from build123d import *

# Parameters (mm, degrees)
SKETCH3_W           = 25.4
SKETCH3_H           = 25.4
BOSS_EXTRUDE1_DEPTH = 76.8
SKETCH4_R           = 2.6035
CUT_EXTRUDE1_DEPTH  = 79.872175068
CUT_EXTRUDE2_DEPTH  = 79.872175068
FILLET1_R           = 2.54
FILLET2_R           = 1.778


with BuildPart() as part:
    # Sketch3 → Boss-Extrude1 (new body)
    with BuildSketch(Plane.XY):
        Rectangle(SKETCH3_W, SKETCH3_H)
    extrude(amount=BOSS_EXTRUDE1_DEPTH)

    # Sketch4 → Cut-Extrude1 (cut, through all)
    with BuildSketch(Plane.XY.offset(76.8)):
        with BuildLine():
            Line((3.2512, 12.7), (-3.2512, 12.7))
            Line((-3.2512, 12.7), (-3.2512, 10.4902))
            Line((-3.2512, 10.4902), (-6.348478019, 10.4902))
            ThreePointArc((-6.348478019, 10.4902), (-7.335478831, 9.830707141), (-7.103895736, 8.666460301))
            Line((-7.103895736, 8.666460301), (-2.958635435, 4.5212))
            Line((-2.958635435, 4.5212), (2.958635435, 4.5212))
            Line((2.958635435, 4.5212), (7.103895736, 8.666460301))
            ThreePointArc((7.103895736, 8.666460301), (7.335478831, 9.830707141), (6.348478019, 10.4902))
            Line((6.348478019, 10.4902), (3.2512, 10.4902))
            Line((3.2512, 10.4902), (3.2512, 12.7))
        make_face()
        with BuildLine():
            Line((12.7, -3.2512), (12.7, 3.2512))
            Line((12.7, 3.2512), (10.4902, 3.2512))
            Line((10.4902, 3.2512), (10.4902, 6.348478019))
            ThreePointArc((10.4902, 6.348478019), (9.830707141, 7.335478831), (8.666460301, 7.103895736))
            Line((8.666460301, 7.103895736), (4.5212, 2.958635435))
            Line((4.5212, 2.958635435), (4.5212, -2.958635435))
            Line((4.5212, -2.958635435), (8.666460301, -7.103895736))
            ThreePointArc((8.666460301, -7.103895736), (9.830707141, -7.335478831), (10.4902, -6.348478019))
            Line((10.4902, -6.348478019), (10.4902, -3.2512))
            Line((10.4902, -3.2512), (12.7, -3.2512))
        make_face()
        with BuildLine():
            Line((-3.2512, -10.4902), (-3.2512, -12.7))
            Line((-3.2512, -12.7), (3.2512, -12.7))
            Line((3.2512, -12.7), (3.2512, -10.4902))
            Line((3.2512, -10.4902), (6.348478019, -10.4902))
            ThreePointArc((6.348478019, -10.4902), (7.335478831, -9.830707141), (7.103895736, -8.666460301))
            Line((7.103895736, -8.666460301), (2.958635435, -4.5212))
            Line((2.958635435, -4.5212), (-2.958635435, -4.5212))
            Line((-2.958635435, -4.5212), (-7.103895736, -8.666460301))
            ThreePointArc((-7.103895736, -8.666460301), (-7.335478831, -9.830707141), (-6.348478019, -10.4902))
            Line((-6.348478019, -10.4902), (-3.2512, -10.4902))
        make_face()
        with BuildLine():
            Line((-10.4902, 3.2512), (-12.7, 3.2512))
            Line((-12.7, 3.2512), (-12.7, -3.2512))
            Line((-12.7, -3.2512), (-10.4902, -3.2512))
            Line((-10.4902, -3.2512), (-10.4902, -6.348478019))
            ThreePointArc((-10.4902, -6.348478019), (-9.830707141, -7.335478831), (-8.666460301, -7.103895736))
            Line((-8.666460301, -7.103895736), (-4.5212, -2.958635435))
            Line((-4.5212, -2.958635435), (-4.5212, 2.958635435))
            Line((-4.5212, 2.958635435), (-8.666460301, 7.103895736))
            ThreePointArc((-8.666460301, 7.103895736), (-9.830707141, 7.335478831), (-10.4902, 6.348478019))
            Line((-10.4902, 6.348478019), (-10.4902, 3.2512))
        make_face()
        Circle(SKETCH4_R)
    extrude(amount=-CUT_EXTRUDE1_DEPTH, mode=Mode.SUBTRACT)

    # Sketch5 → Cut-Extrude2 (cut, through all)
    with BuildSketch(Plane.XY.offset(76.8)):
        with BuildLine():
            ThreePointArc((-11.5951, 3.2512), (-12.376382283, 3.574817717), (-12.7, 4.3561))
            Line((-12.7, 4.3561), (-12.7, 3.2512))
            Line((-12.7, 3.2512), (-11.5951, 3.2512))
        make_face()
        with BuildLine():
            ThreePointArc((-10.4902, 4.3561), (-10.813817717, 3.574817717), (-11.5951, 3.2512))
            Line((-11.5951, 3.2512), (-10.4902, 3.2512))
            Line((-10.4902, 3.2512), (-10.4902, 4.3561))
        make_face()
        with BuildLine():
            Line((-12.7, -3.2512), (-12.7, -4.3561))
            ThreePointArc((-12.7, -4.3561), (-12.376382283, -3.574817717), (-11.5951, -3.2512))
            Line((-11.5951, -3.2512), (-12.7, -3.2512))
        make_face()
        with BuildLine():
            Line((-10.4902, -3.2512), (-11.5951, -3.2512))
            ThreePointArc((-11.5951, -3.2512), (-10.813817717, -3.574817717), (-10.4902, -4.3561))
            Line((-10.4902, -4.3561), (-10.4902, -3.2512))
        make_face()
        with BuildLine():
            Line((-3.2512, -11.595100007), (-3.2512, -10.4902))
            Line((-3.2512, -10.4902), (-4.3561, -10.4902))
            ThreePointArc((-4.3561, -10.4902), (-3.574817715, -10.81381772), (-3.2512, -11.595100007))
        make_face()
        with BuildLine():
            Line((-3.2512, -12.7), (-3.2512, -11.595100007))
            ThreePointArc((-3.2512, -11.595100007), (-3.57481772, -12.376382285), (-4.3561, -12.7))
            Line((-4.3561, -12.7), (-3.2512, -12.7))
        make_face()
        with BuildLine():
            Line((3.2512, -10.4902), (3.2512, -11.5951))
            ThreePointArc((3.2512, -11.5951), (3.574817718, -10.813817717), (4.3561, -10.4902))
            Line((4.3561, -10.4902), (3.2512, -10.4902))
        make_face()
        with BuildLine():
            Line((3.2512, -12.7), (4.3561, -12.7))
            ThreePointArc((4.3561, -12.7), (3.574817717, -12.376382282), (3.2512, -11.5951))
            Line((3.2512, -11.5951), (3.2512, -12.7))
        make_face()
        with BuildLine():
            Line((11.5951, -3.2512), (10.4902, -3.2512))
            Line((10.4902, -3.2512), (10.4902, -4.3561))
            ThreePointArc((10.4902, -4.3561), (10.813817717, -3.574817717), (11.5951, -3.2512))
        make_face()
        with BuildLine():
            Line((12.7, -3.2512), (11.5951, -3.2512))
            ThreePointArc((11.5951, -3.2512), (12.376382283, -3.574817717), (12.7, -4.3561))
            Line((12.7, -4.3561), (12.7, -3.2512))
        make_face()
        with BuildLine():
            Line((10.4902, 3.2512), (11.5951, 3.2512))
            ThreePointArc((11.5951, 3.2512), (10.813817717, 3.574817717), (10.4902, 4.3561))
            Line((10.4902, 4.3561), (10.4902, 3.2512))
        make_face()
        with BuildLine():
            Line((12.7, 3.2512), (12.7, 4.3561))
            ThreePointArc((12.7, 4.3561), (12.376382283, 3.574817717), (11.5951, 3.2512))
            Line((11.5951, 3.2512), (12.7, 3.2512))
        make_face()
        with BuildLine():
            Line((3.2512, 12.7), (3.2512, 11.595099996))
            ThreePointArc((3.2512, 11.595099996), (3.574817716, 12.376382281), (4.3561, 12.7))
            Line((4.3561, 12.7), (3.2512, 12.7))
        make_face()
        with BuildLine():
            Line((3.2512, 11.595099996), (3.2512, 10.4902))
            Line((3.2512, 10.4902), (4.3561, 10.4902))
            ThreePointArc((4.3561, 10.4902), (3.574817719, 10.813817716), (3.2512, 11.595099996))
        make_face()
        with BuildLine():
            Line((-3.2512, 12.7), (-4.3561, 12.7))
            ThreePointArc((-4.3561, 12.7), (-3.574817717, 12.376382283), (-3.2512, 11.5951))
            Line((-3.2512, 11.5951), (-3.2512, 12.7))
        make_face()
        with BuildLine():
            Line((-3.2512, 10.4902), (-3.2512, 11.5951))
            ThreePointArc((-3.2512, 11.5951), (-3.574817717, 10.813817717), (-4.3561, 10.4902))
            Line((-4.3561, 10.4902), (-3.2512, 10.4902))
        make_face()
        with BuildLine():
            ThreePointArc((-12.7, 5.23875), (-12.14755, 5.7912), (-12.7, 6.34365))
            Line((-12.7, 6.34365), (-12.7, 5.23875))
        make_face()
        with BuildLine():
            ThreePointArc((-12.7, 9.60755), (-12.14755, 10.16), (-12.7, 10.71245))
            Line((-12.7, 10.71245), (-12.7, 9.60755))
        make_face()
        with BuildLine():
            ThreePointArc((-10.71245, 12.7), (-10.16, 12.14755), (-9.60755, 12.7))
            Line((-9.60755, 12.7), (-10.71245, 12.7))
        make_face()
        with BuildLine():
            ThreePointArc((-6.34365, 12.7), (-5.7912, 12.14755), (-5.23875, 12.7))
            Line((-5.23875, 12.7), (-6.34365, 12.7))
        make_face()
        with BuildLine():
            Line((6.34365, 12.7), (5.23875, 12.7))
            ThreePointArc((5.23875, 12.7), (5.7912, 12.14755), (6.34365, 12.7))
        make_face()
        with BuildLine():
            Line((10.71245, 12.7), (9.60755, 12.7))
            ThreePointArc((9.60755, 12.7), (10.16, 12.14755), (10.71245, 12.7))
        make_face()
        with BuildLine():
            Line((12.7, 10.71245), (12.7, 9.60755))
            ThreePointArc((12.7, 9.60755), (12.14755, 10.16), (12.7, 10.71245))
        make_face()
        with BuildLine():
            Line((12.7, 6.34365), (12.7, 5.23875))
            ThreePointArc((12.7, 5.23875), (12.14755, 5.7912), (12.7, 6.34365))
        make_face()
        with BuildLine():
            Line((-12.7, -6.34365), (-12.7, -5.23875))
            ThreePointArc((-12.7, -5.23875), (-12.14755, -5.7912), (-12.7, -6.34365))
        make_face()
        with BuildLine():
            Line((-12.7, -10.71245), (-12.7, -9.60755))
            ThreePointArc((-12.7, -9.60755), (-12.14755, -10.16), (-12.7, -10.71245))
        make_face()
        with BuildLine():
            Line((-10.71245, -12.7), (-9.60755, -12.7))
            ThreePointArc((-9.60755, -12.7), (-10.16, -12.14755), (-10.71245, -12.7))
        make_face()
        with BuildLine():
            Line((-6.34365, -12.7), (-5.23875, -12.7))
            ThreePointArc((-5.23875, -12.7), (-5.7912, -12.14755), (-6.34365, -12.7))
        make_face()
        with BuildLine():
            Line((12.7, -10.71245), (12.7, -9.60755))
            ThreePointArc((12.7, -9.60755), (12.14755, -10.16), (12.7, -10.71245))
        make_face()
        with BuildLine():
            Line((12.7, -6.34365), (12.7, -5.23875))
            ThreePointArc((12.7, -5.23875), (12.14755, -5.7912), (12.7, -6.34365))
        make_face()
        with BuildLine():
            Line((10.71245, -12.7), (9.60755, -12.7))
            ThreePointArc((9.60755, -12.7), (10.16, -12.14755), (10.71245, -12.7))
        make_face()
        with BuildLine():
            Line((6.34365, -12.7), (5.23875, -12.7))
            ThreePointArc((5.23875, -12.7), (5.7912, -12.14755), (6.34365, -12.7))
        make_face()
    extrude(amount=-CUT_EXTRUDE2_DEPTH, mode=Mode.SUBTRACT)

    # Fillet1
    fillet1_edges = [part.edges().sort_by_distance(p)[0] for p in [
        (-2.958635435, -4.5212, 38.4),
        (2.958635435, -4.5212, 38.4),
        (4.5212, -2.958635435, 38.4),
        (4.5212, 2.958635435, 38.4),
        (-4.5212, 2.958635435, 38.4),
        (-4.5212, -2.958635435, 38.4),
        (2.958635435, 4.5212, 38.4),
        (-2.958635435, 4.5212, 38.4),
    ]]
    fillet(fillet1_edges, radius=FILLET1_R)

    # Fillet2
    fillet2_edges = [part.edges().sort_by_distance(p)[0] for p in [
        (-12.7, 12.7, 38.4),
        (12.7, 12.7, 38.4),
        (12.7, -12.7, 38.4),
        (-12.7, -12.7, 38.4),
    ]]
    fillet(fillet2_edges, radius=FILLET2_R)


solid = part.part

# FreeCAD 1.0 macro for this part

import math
import FreeCAD as App
import Part
import Sketcher
from FreeCAD import Vector
Q = App.Units.Quantity


def edges_at(feature, points):
    """Names of the edges that pass closest to the given points."""
    edges = feature.Shape.Edges
    near = lambda p: min(range(len(edges)), key=lambda i: edges[i].distToShape(Part.Vertex(*p))[0])
    return sorted({f"Edge{near(p) + 1}" for p in points})


def add_polygon(sketch, points):
    """Adds a closed chain of lines whose ends are joined by coincident constraints."""
    first, n = sketch.GeometryCount, len(points)
    for a, b in zip(points, points[1:] + points[:1]):
        sketch.addGeometry(Part.LineSegment(App.Vector(*a, 0), App.Vector(*b, 0)), False)
    for i in range(n):
        sketch.addConstraint(Sketcher.Constraint("Coincident", first + i, 2, first + (i + 1) % n, 1))

doc = App.newDocument("Part")
body = doc.addObject("PartDesign::Body", "Body")

# Sketch on XY plane
sketch1 = doc.addObject("Sketcher::SketchObject", "Sketch")
body.addObject(sketch1)
sketch1.AttachmentSupport = (doc.XY_Plane, [""])
sketch1.MapMode = "FlatFace"
add_polygon(sketch1, [(-13, 13), (-13, -13), (13, -13), (13, 13)])  # lines 0-3
sketch1.addConstraint(Sketcher.Constraint("Vertical", 0))
sketch1.addConstraint(Sketcher.Constraint("Horizontal", 1))
sketch1.addConstraint(Sketcher.Constraint("Vertical", 2))
sketch1.addConstraint(Sketcher.Constraint("Horizontal", 3))
sketch1.addConstraint(Sketcher.Constraint("Symmetric", 0, 2, 2, 2, -1, 1))
sketch1.addConstraint(Sketcher.Constraint("Equal", 3, 0))
sketch1.addConstraint(Sketcher.Constraint("DistanceX", 1, 1, 1, 2, Q("1 in")))
pad1 = doc.addObject("PartDesign::Pad", "Pad")
body.addObject(pad1)
pad1.Profile = sketch1
pad1.Length = 76.8

# Sketch on XY plane
sketch2 = doc.addObject("Sketcher::SketchObject", "Sketch001")
body.addObject(sketch2)
sketch2.AttachmentSupport = (doc.XY_Plane, [""])
sketch2.MapMode = "FlatFace"
sketch2.AttachmentOffset = App.Placement(Vector(0, 0, 76.8), App.Rotation())
sketch2.addGeometry(Part.LineSegment(Vector(3.3, 12.7, 0), Vector(-3.3, 12.7, 0)), False)
sketch2.addGeometry(Part.LineSegment(Vector(-3.3, 12.7, 0), Vector(-3.3, 10.5, 0)), False)
sketch2.addGeometry(Part.LineSegment(Vector(-3.3, 10.5, 0), Vector(-6.3, 10.5, 0)), False)
sketch2.addGeometry(Part.ArcOfCircle(Part.Circle(Vector(-6.3, 9.4, 0), Vector(0, 0, 1), 1.1), math.radians(90), math.radians(225)), False)
sketch2.addGeometry(Part.LineSegment(Vector(-7.1, 8.7, 0), Vector(-3, 4.5, 0)), False)
sketch2.addGeometry(Part.LineSegment(Vector(-3, 4.5, 0), Vector(3, 4.5, 0)), False)
sketch2.addGeometry(Part.LineSegment(Vector(3, 4.5, 0), Vector(7.1, 8.7, 0)), False)
sketch2.addGeometry(Part.ArcOfCircle(Part.Circle(Vector(6.3, 9.4, 0), Vector(0, 0, 1), 1.1), math.radians(-45), math.radians(90)), False)
sketch2.addGeometry(Part.LineSegment(Vector(6.3, 10.5, 0), Vector(3.3, 10.5, 0)), False)
sketch2.addGeometry(Part.LineSegment(Vector(3.3, 10.5, 0), Vector(3.3, 12.7, 0)), False)
sketch2.addGeometry(Part.LineSegment(Vector(12.7, -3.3, 0), Vector(12.7, 3.3, 0)), False)
sketch2.addGeometry(Part.LineSegment(Vector(12.7, 3.3, 0), Vector(10.5, 3.3, 0)), False)
sketch2.addGeometry(Part.LineSegment(Vector(10.5, 3.3, 0), Vector(10.5, 6.3, 0)), False)
sketch2.addGeometry(Part.ArcOfCircle(Part.Circle(Vector(9.4, 6.3, 0), Vector(0, 0, 1), 1.1), math.radians(0), math.radians(135)), False)
sketch2.addGeometry(Part.LineSegment(Vector(8.7, 7.1, 0), Vector(4.5, 3, 0)), False)
sketch2.addGeometry(Part.LineSegment(Vector(4.5, 3, 0), Vector(4.5, -3, 0)), False)
sketch2.addGeometry(Part.LineSegment(Vector(4.5, -3, 0), Vector(8.7, -7.1, 0)), False)
sketch2.addGeometry(Part.ArcOfCircle(Part.Circle(Vector(9.4, -6.3, 0), Vector(0, 0, 1), 1.1), math.radians(-135), math.radians(0)), False)
sketch2.addGeometry(Part.LineSegment(Vector(10.5, -6.3, 0), Vector(10.5, -3.3, 0)), False)
sketch2.addGeometry(Part.LineSegment(Vector(10.5, -3.3, 0), Vector(12.7, -3.3, 0)), False)
sketch2.addGeometry(Part.LineSegment(Vector(-3.3, -10.5, 0), Vector(-3.3, -12.7, 0)), False)
sketch2.addGeometry(Part.LineSegment(Vector(-3.3, -12.7, 0), Vector(3.3, -12.7, 0)), False)
sketch2.addGeometry(Part.LineSegment(Vector(3.3, -12.7, 0), Vector(3.3, -10.5, 0)), False)
sketch2.addGeometry(Part.LineSegment(Vector(3.3, -10.5, 0), Vector(6.3, -10.5, 0)), False)
sketch2.addGeometry(Part.ArcOfCircle(Part.Circle(Vector(6.3, -9.4, 0), Vector(0, 0, 1), 1.1), math.radians(-90), math.radians(45)), False)
sketch2.addGeometry(Part.LineSegment(Vector(7.1, -8.7, 0), Vector(3, -4.5, 0)), False)
sketch2.addGeometry(Part.LineSegment(Vector(3, -4.5, 0), Vector(-3, -4.5, 0)), False)
sketch2.addGeometry(Part.LineSegment(Vector(-3, -4.5, 0), Vector(-7.1, -8.7, 0)), False)
sketch2.addGeometry(Part.ArcOfCircle(Part.Circle(Vector(-6.3, -9.4, 0), Vector(0, 0, 1), 1.1), math.radians(135), math.radians(270)), False)
sketch2.addGeometry(Part.LineSegment(Vector(-6.3, -10.5, 0), Vector(-3.3, -10.5, 0)), False)
sketch2.addGeometry(Part.LineSegment(Vector(-10.5, 3.3, 0), Vector(-12.7, 3.3, 0)), False)
sketch2.addGeometry(Part.LineSegment(Vector(-12.7, 3.3, 0), Vector(-12.7, -3.3, 0)), False)
sketch2.addGeometry(Part.LineSegment(Vector(-12.7, -3.3, 0), Vector(-10.5, -3.3, 0)), False)
sketch2.addGeometry(Part.LineSegment(Vector(-10.5, -3.3, 0), Vector(-10.5, -6.3, 0)), False)
sketch2.addGeometry(Part.ArcOfCircle(Part.Circle(Vector(-9.4, -6.3, 0), Vector(0, 0, 1), 1.1), math.radians(-180), math.radians(-45)), False)
sketch2.addGeometry(Part.LineSegment(Vector(-8.7, -7.1, 0), Vector(-4.5, -3, 0)), False)
sketch2.addGeometry(Part.LineSegment(Vector(-4.5, -3, 0), Vector(-4.5, 3, 0)), False)
sketch2.addGeometry(Part.LineSegment(Vector(-4.5, 3, 0), Vector(-8.7, 7.1, 0)), False)
sketch2.addGeometry(Part.ArcOfCircle(Part.Circle(Vector(-9.4, 6.3, 0), Vector(0, 0, 1), 1.1), math.radians(45), math.radians(180)), False)
sketch2.addGeometry(Part.LineSegment(Vector(-10.5, 6.3, 0), Vector(-10.5, 3.3, 0)), False)
sketch2.addGeometry(Part.Circle(Vector(0, 0, 0), Vector(0, 0, 1), 2.6), False)
sketch2.addConstraint(Sketcher.Constraint("Coincident", 0, 2, 1, 1))
sketch2.addConstraint(Sketcher.Constraint("Coincident", 1, 2, 2, 1))
sketch2.addConstraint(Sketcher.Constraint("Tangent", 2, 2, 3, 1))
sketch2.addConstraint(Sketcher.Constraint("Tangent", 3, 2, 4, 1))
sketch2.addConstraint(Sketcher.Constraint("Coincident", 4, 2, 5, 1))
sketch2.addConstraint(Sketcher.Constraint("Coincident", 5, 2, 6, 1))
sketch2.addConstraint(Sketcher.Constraint("Tangent", 6, 2, 7, 1))
sketch2.addConstraint(Sketcher.Constraint("Tangent", 7, 2, 8, 1))
sketch2.addConstraint(Sketcher.Constraint("Coincident", 8, 2, 9, 1))
sketch2.addConstraint(Sketcher.Constraint("Coincident", 9, 2, 0, 1))
sketch2.addConstraint(Sketcher.Constraint("Coincident", 10, 2, 11, 1))
sketch2.addConstraint(Sketcher.Constraint("Coincident", 11, 2, 12, 1))
sketch2.addConstraint(Sketcher.Constraint("Tangent", 12, 2, 13, 1))
sketch2.addConstraint(Sketcher.Constraint("Tangent", 13, 2, 14, 1))
sketch2.addConstraint(Sketcher.Constraint("Coincident", 14, 2, 15, 1))
sketch2.addConstraint(Sketcher.Constraint("Coincident", 15, 2, 16, 1))
sketch2.addConstraint(Sketcher.Constraint("Tangent", 16, 2, 17, 1))
sketch2.addConstraint(Sketcher.Constraint("Tangent", 17, 2, 18, 1))
sketch2.addConstraint(Sketcher.Constraint("Coincident", 18, 2, 19, 1))
sketch2.addConstraint(Sketcher.Constraint("Coincident", 19, 2, 10, 1))
sketch2.addConstraint(Sketcher.Constraint("Coincident", 20, 2, 21, 1))
sketch2.addConstraint(Sketcher.Constraint("Coincident", 21, 2, 22, 1))
sketch2.addConstraint(Sketcher.Constraint("Coincident", 22, 2, 23, 1))
sketch2.addConstraint(Sketcher.Constraint("Tangent", 23, 2, 24, 1))
sketch2.addConstraint(Sketcher.Constraint("Tangent", 24, 2, 25, 1))
sketch2.addConstraint(Sketcher.Constraint("Coincident", 25, 2, 26, 1))
sketch2.addConstraint(Sketcher.Constraint("Coincident", 26, 2, 27, 1))
sketch2.addConstraint(Sketcher.Constraint("Tangent", 27, 2, 28, 1))
sketch2.addConstraint(Sketcher.Constraint("Tangent", 28, 2, 29, 1))
sketch2.addConstraint(Sketcher.Constraint("Coincident", 29, 2, 20, 1))
sketch2.addConstraint(Sketcher.Constraint("Coincident", 30, 2, 31, 1))
sketch2.addConstraint(Sketcher.Constraint("Coincident", 31, 2, 32, 1))
sketch2.addConstraint(Sketcher.Constraint("Coincident", 32, 2, 33, 1))
sketch2.addConstraint(Sketcher.Constraint("Tangent", 33, 2, 34, 1))
sketch2.addConstraint(Sketcher.Constraint("Tangent", 34, 2, 35, 1))
sketch2.addConstraint(Sketcher.Constraint("Coincident", 35, 2, 36, 1))
sketch2.addConstraint(Sketcher.Constraint("Coincident", 36, 2, 37, 1))
sketch2.addConstraint(Sketcher.Constraint("Tangent", 37, 2, 38, 1))
sketch2.addConstraint(Sketcher.Constraint("Tangent", 38, 2, 39, 1))
sketch2.addConstraint(Sketcher.Constraint("Coincident", 39, 2, 30, 1))
sketch2.addConstraint(Sketcher.Constraint("Horizontal", 0))
sketch2.addConstraint(Sketcher.Constraint("Vertical", 1))
sketch2.addConstraint(Sketcher.Constraint("Horizontal", 2))
sketch2.addConstraint(Sketcher.Constraint("Horizontal", 5))
sketch2.addConstraint(Sketcher.Constraint("Horizontal", 8))
sketch2.addConstraint(Sketcher.Constraint("Vertical", 9))
sketch2.addConstraint(Sketcher.Constraint("Vertical", 10))
sketch2.addConstraint(Sketcher.Constraint("Horizontal", 11))
sketch2.addConstraint(Sketcher.Constraint("Vertical", 12))
sketch2.addConstraint(Sketcher.Constraint("Vertical", 15))
sketch2.addConstraint(Sketcher.Constraint("Vertical", 18))
sketch2.addConstraint(Sketcher.Constraint("Horizontal", 19))
sketch2.addConstraint(Sketcher.Constraint("Vertical", 20))
sketch2.addConstraint(Sketcher.Constraint("Horizontal", 21))
sketch2.addConstraint(Sketcher.Constraint("Vertical", 22))
sketch2.addConstraint(Sketcher.Constraint("Horizontal", 23))
sketch2.addConstraint(Sketcher.Constraint("Horizontal", 26))
sketch2.addConstraint(Sketcher.Constraint("Horizontal", 29))
sketch2.addConstraint(Sketcher.Constraint("Horizontal", 30))
sketch2.addConstraint(Sketcher.Constraint("Vertical", 31))
sketch2.addConstraint(Sketcher.Constraint("Horizontal", 32))
sketch2.addConstraint(Sketcher.Constraint("Vertical", 33))
sketch2.addConstraint(Sketcher.Constraint("Vertical", 36))
sketch2.addConstraint(Sketcher.Constraint("Vertical", 39))
sketch2.addConstraint(Sketcher.Constraint("Coincident", 40, 3, -1, 1))
sketch2.addConstraint(Sketcher.Constraint("Equal", 3, 7))
sketch2.addConstraint(Sketcher.Constraint("Equal", 7, 13))
sketch2.addConstraint(Sketcher.Constraint("Equal", 13, 17))
sketch2.addConstraint(Sketcher.Constraint("Equal", 17, 24))
sketch2.addConstraint(Sketcher.Constraint("Equal", 24, 28))
sketch2.addConstraint(Sketcher.Constraint("Equal", 28, 34))
sketch2.addConstraint(Sketcher.Constraint("Equal", 34, 38))
sketch2.addConstraint(Sketcher.Constraint("Symmetric", 3, 3, 24, 3, -1, 1))
sketch2.addConstraint(Sketcher.Constraint("Symmetric", 7, 3, 28, 3, -1, 1))
sketch2.addConstraint(Sketcher.Constraint("Symmetric", 13, 3, 34, 3, -1, 1))
sketch2.addConstraint(Sketcher.Constraint("Symmetric", 17, 3, 38, 3, -1, 1))
sketch2.addConstraint(Sketcher.Constraint("Symmetric", 9, 2, 20, 2, -1, 1))
sketch2.addConstraint(Sketcher.Constraint("Symmetric", 4, 2, 25, 2, -1, 1))
sketch2.addConstraint(Sketcher.Constraint("Symmetric", 19, 2, 30, 2, -1, 1))
sketch2.addConstraint(Sketcher.Constraint("Symmetric", 14, 2, 35, 2, -1, 1))
sketch2.addConstraint(Sketcher.Constraint("Symmetric", 3, 3, 7, 3, -2))
sketch2.addConstraint(Sketcher.Constraint("Symmetric", 17, 3, 34, 3, -2))
sketch2.addConstraint(Sketcher.Constraint("Perpendicular", 4, 6))
sketch2.addConstraint(Sketcher.Constraint("Parallel", 6, 14))
sketch2.addConstraint(Sketcher.Constraint("Perpendicular", 14, 16))
sketch2.addConstraint(Sketcher.Constraint("Perpendicular", 25, 27))
sketch2.addConstraint(Sketcher.Constraint("Perpendicular", 35, 37))
sketch2.addConstraint(Sketcher.Constraint("Horizontal", 3, 2, 6, 2))
sketch2.addConstraint(Sketcher.Constraint("Horizontal", 11, 2, 30, 2))
sketch2.addConstraint(Sketcher.Constraint("Horizontal", 19, 2, 31, 2))
sketch2.addConstraint(Sketcher.Constraint("Vertical", 1, 2, 20, 2))
sketch2.addConstraint(Sketcher.Constraint("Vertical", 9, 2, 21, 2))
sketch2.addConstraint(Sketcher.Constraint("Equal", 32, 1))
sketch2.addConstraint(Sketcher.Constraint("Equal", 21, 10))
sketch2.addConstraint(Sketcher.Constraint("Equal", 29, 12))
sketch2.addConstraint(Sketcher.Constraint("Equal", 26, 15))
sketch2.addConstraint(Sketcher.Constraint("Diameter", 40, Q("0.205 in")))
sketch2.addConstraint(Sketcher.Constraint("DistanceY", -1, 1, 0, 2, Q("0.5 in")))
sketch2.addConstraint(Sketcher.Constraint("DistanceX", -1, 1, 10, 2, Q("0.5 in")))
sketch2.addConstraint(Sketcher.Constraint("DistanceX", 0, 2, 0, 1, Q("0.256 in")))
sketch2.addConstraint(Sketcher.Constraint("DistanceX", 11, 2, 11, 1, Q("0.087 in")))
sketch2.addConstraint(Sketcher.Constraint("DistanceY", 10, 2, 5, 2, Q("0.05 in")))
sketch2.addConstraint(Sketcher.Constraint("Radius", 3, 1.068322))
sketch2.addConstraint(Sketcher.Constraint("DistanceX", 7, 3, 13, 3, Q("0.121 in")))
pocket1 = doc.addObject("PartDesign::Pocket", "Pocket")
body.addObject(pocket1)
pocket1.Profile = sketch2
pocket1.Type = "ThroughAll"

# Sketch on XY plane
sketch3 = doc.addObject("Sketcher::SketchObject", "Sketch002")
body.addObject(sketch3)
sketch3.AttachmentSupport = (doc.XY_Plane, [""])
sketch3.MapMode = "FlatFace"
sketch3.AttachmentOffset = App.Placement(Vector(0, 0, 76.8), App.Rotation())
sketch3.addGeometry(Part.ArcOfCircle(Part.Circle(Vector(-11.6, 4.4, 0), Vector(0, 0, 1), 1.1), math.radians(180), math.radians(270)), False)
sketch3.addGeometry(Part.LineSegment(Vector(-12.7, 4.4, 0), Vector(-12.7, 3.3, 0)), False)
sketch3.addGeometry(Part.LineSegment(Vector(-12.7, 3.3, 0), Vector(-11.6, 3.3, 0)), False)
sketch3.addGeometry(Part.ArcOfCircle(Part.Circle(Vector(-11.6, 4.4, 0), Vector(0, 0, 1), 1.1), math.radians(-90), math.radians(0)), False)
sketch3.addGeometry(Part.LineSegment(Vector(-11.6, 3.3, 0), Vector(-10.5, 3.3, 0)), False)
sketch3.addGeometry(Part.LineSegment(Vector(-10.5, 3.3, 0), Vector(-10.5, 4.4, 0)), False)
sketch3.addGeometry(Part.LineSegment(Vector(-12.7, -3.3, 0), Vector(-12.7, -4.4, 0)), False)
sketch3.addGeometry(Part.ArcOfCircle(Part.Circle(Vector(-11.6, -4.4, 0), Vector(0, 0, 1), 1.1), math.radians(90), math.radians(180)), False)
sketch3.addGeometry(Part.LineSegment(Vector(-11.6, -3.3, 0), Vector(-12.7, -3.3, 0)), False)
sketch3.addGeometry(Part.LineSegment(Vector(-10.5, -3.3, 0), Vector(-11.6, -3.3, 0)), False)
sketch3.addGeometry(Part.ArcOfCircle(Part.Circle(Vector(-11.6, -4.4, 0), Vector(0, 0, 1), 1.1), math.radians(0), math.radians(90)), False)
sketch3.addGeometry(Part.LineSegment(Vector(-10.5, -4.4, 0), Vector(-10.5, -3.3, 0)), False)
sketch3.addGeometry(Part.LineSegment(Vector(-3.3, -11.6, 0), Vector(-3.3, -10.5, 0)), False)
sketch3.addGeometry(Part.LineSegment(Vector(-3.3, -10.5, 0), Vector(-4.4, -10.5, 0)), False)
sketch3.addGeometry(Part.ArcOfCircle(Part.Circle(Vector(-4.4, -11.6, 0), Vector(0, 0, 1), 1.1), math.radians(0), math.radians(90)), False)
sketch3.addGeometry(Part.LineSegment(Vector(-3.3, -12.7, 0), Vector(-3.3, -11.6, 0)), False)
sketch3.addGeometry(Part.ArcOfCircle(Part.Circle(Vector(-4.4, -11.6, 0), Vector(0, 0, 1), 1.1), math.radians(-90), math.radians(0)), False)
sketch3.addGeometry(Part.LineSegment(Vector(-4.4, -12.7, 0), Vector(-3.3, -12.7, 0)), False)
sketch3.addGeometry(Part.LineSegment(Vector(3.3, -10.5, 0), Vector(3.3, -11.6, 0)), False)
sketch3.addGeometry(Part.ArcOfCircle(Part.Circle(Vector(4.4, -11.6, 0), Vector(0, 0, 1), 1.1), math.radians(90), math.radians(180)), False)
sketch3.addGeometry(Part.LineSegment(Vector(4.4, -10.5, 0), Vector(3.3, -10.5, 0)), False)
sketch3.addGeometry(Part.LineSegment(Vector(3.3, -12.7, 0), Vector(4.4, -12.7, 0)), False)
sketch3.addGeometry(Part.ArcOfCircle(Part.Circle(Vector(4.4, -11.6, 0), Vector(0, 0, 1), 1.1), math.radians(180), math.radians(270)), False)
sketch3.addGeometry(Part.LineSegment(Vector(3.3, -11.6, 0), Vector(3.3, -12.7, 0)), False)
sketch3.addGeometry(Part.LineSegment(Vector(11.6, -3.3, 0), Vector(10.5, -3.3, 0)), False)
sketch3.addGeometry(Part.LineSegment(Vector(10.5, -3.3, 0), Vector(10.5, -4.4, 0)), False)
sketch3.addGeometry(Part.ArcOfCircle(Part.Circle(Vector(11.6, -4.4, 0), Vector(0, 0, 1), 1.1), math.radians(90), math.radians(180)), False)
sketch3.addGeometry(Part.LineSegment(Vector(12.7, -3.3, 0), Vector(11.6, -3.3, 0)), False)
sketch3.addGeometry(Part.ArcOfCircle(Part.Circle(Vector(11.6, -4.4, 0), Vector(0, 0, 1), 1.1), math.radians(0), math.radians(90)), False)
sketch3.addGeometry(Part.LineSegment(Vector(12.7, -4.4, 0), Vector(12.7, -3.3, 0)), False)
sketch3.addGeometry(Part.LineSegment(Vector(10.5, 3.3, 0), Vector(11.6, 3.3, 0)), False)
sketch3.addGeometry(Part.ArcOfCircle(Part.Circle(Vector(11.6, 4.4, 0), Vector(0, 0, 1), 1.1), math.radians(180), math.radians(270)), False)
sketch3.addGeometry(Part.LineSegment(Vector(10.5, 4.4, 0), Vector(10.5, 3.3, 0)), False)
sketch3.addGeometry(Part.LineSegment(Vector(12.7, 3.3, 0), Vector(12.7, 4.4, 0)), False)
sketch3.addGeometry(Part.ArcOfCircle(Part.Circle(Vector(11.6, 4.4, 0), Vector(0, 0, 1), 1.1), math.radians(-90), math.radians(0)), False)
sketch3.addGeometry(Part.LineSegment(Vector(11.6, 3.3, 0), Vector(12.7, 3.3, 0)), False)
sketch3.addGeometry(Part.LineSegment(Vector(3.3, 12.7, 0), Vector(3.3, 11.6, 0)), False)
sketch3.addGeometry(Part.ArcOfCircle(Part.Circle(Vector(4.4, 11.6, 0), Vector(0, 0, 1), 1.1), math.radians(90), math.radians(180)), False)
sketch3.addGeometry(Part.LineSegment(Vector(4.4, 12.7, 0), Vector(3.3, 12.7, 0)), False)
sketch3.addGeometry(Part.LineSegment(Vector(3.3, 11.6, 0), Vector(3.3, 10.5, 0)), False)
sketch3.addGeometry(Part.LineSegment(Vector(3.3, 10.5, 0), Vector(4.4, 10.5, 0)), False)
sketch3.addGeometry(Part.ArcOfCircle(Part.Circle(Vector(4.4, 11.6, 0), Vector(0, 0, 1), 1.1), math.radians(-180), math.radians(-90)), False)
sketch3.addGeometry(Part.LineSegment(Vector(-3.3, 12.7, 0), Vector(-4.4, 12.7, 0)), False)
sketch3.addGeometry(Part.ArcOfCircle(Part.Circle(Vector(-4.4, 11.6, 0), Vector(0, 0, 1), 1.1), math.radians(0), math.radians(90)), False)
sketch3.addGeometry(Part.LineSegment(Vector(-3.3, 11.6, 0), Vector(-3.3, 12.7, 0)), False)
sketch3.addGeometry(Part.LineSegment(Vector(-3.3, 10.5, 0), Vector(-3.3, 11.6, 0)), False)
sketch3.addGeometry(Part.ArcOfCircle(Part.Circle(Vector(-4.4, 11.6, 0), Vector(0, 0, 1), 1.1), math.radians(-90), math.radians(0)), False)
sketch3.addGeometry(Part.LineSegment(Vector(-4.4, 10.5, 0), Vector(-3.3, 10.5, 0)), False)
sketch3.addGeometry(Part.ArcOfCircle(Part.Circle(Vector(-12.7, 5.8, 0), Vector(0, 0, 1), 0.6), math.radians(-90), math.radians(90)), False)
sketch3.addGeometry(Part.LineSegment(Vector(-12.7, 6.3, 0), Vector(-12.7, 5.2, 0)), False)
sketch3.addGeometry(Part.ArcOfCircle(Part.Circle(Vector(-12.7, 10.2, 0), Vector(0, 0, 1), 0.6), math.radians(-90), math.radians(90)), False)
sketch3.addGeometry(Part.LineSegment(Vector(-12.7, 10.7, 0), Vector(-12.7, 9.6, 0)), False)
sketch3.addGeometry(Part.ArcOfCircle(Part.Circle(Vector(-10.2, 12.7, 0), Vector(0, 0, 1), 0.6), math.radians(180), math.radians(360)), False)
sketch3.addGeometry(Part.LineSegment(Vector(-9.6, 12.7, 0), Vector(-10.7, 12.7, 0)), False)
sketch3.addGeometry(Part.ArcOfCircle(Part.Circle(Vector(-5.8, 12.7, 0), Vector(0, 0, 1), 0.6), math.radians(180), math.radians(360)), False)
sketch3.addGeometry(Part.LineSegment(Vector(-5.2, 12.7, 0), Vector(-6.3, 12.7, 0)), False)
sketch3.addGeometry(Part.LineSegment(Vector(6.3, 12.7, 0), Vector(5.2, 12.7, 0)), False)
sketch3.addGeometry(Part.ArcOfCircle(Part.Circle(Vector(5.8, 12.7, 0), Vector(0, 0, 1), 0.6), math.radians(180), math.radians(360)), False)
sketch3.addGeometry(Part.LineSegment(Vector(10.7, 12.7, 0), Vector(9.6, 12.7, 0)), False)
sketch3.addGeometry(Part.ArcOfCircle(Part.Circle(Vector(10.2, 12.7, 0), Vector(0, 0, 1), 0.6), math.radians(180), math.radians(360)), False)
sketch3.addGeometry(Part.LineSegment(Vector(12.7, 9.6, 0), Vector(12.7, 10.7, 0)), False)
sketch3.addGeometry(Part.ArcOfCircle(Part.Circle(Vector(12.7, 10.2, 0), Vector(0, 0, 1), 0.6), math.radians(90), math.radians(270)), False)
sketch3.addGeometry(Part.LineSegment(Vector(12.7, 5.2, 0), Vector(12.7, 6.3, 0)), False)
sketch3.addGeometry(Part.ArcOfCircle(Part.Circle(Vector(12.7, 5.8, 0), Vector(0, 0, 1), 0.6), math.radians(90), math.radians(270)), False)
sketch3.addGeometry(Part.LineSegment(Vector(-12.7, -5.2, 0), Vector(-12.7, -6.3, 0)), False)
sketch3.addGeometry(Part.ArcOfCircle(Part.Circle(Vector(-12.7, -5.8, 0), Vector(0, 0, 1), 0.6), math.radians(-90), math.radians(90)), False)
sketch3.addGeometry(Part.LineSegment(Vector(-12.7, -9.6, 0), Vector(-12.7, -10.7, 0)), False)
sketch3.addGeometry(Part.ArcOfCircle(Part.Circle(Vector(-12.7, -10.2, 0), Vector(0, 0, 1), 0.6), math.radians(-90), math.radians(90)), False)
sketch3.addGeometry(Part.LineSegment(Vector(-10.7, -12.7, 0), Vector(-9.6, -12.7, 0)), False)
sketch3.addGeometry(Part.ArcOfCircle(Part.Circle(Vector(-10.2, -12.7, 0), Vector(0, 0, 1), 0.6), math.radians(0), math.radians(180)), False)
sketch3.addGeometry(Part.LineSegment(Vector(-6.3, -12.7, 0), Vector(-5.2, -12.7, 0)), False)
sketch3.addGeometry(Part.ArcOfCircle(Part.Circle(Vector(-5.8, -12.7, 0), Vector(0, 0, 1), 0.6), math.radians(0), math.radians(180)), False)
sketch3.addGeometry(Part.LineSegment(Vector(12.7, -10.7, 0), Vector(12.7, -9.6, 0)), False)
sketch3.addGeometry(Part.ArcOfCircle(Part.Circle(Vector(12.7, -10.2, 0), Vector(0, 0, 1), 0.6), math.radians(90), math.radians(270)), False)
sketch3.addGeometry(Part.LineSegment(Vector(12.7, -6.3, 0), Vector(12.7, -5.2, 0)), False)
sketch3.addGeometry(Part.ArcOfCircle(Part.Circle(Vector(12.7, -5.8, 0), Vector(0, 0, 1), 0.6), math.radians(90), math.radians(270)), False)
sketch3.addGeometry(Part.LineSegment(Vector(9.6, -12.7, 0), Vector(10.7, -12.7, 0)), False)
sketch3.addGeometry(Part.ArcOfCircle(Part.Circle(Vector(10.2, -12.7, 0), Vector(0, 0, 1), 0.6), math.radians(0), math.radians(180)), False)
sketch3.addGeometry(Part.LineSegment(Vector(5.2, -12.7, 0), Vector(6.3, -12.7, 0)), False)
sketch3.addGeometry(Part.ArcOfCircle(Part.Circle(Vector(5.8, -12.7, 0), Vector(0, 0, 1), 0.6), math.radians(0), math.radians(180)), False)
sketch3.addConstraint(Sketcher.Constraint("Tangent", 0, 1, 1, 1))
sketch3.addConstraint(Sketcher.Constraint("Coincident", 1, 2, 2, 1))
sketch3.addConstraint(Sketcher.Constraint("Tangent", 2, 2, 0, 2))
sketch3.addConstraint(Sketcher.Constraint("Tangent", 3, 1, 4, 1))
sketch3.addConstraint(Sketcher.Constraint("Coincident", 4, 2, 5, 1))
sketch3.addConstraint(Sketcher.Constraint("Tangent", 5, 2, 3, 2))
sketch3.addConstraint(Sketcher.Constraint("Tangent", 6, 2, 7, 2))
sketch3.addConstraint(Sketcher.Constraint("Tangent", 7, 1, 8, 1))
sketch3.addConstraint(Sketcher.Constraint("Coincident", 8, 2, 6, 1))
sketch3.addConstraint(Sketcher.Constraint("Tangent", 9, 2, 10, 2))
sketch3.addConstraint(Sketcher.Constraint("Tangent", 10, 1, 11, 1))
sketch3.addConstraint(Sketcher.Constraint("Coincident", 11, 2, 9, 1))
sketch3.addConstraint(Sketcher.Constraint("Coincident", 12, 2, 13, 1))
sketch3.addConstraint(Sketcher.Constraint("Tangent", 13, 2, 14, 2))
sketch3.addConstraint(Sketcher.Constraint("Tangent", 14, 1, 12, 1))
sketch3.addConstraint(Sketcher.Constraint("Tangent", 15, 2, 16, 2))
sketch3.addConstraint(Sketcher.Constraint("Tangent", 16, 1, 17, 1))
sketch3.addConstraint(Sketcher.Constraint("Coincident", 17, 2, 15, 1))
sketch3.addConstraint(Sketcher.Constraint("Tangent", 18, 2, 19, 2))
sketch3.addConstraint(Sketcher.Constraint("Tangent", 19, 1, 20, 1))
sketch3.addConstraint(Sketcher.Constraint("Coincident", 20, 2, 18, 1))
sketch3.addConstraint(Sketcher.Constraint("Tangent", 21, 2, 22, 2))
sketch3.addConstraint(Sketcher.Constraint("Tangent", 22, 1, 23, 1))
sketch3.addConstraint(Sketcher.Constraint("Coincident", 23, 2, 21, 1))
sketch3.addConstraint(Sketcher.Constraint("Coincident", 24, 2, 25, 1))
sketch3.addConstraint(Sketcher.Constraint("Tangent", 25, 2, 26, 2))
sketch3.addConstraint(Sketcher.Constraint("Tangent", 26, 1, 24, 1))
sketch3.addConstraint(Sketcher.Constraint("Tangent", 27, 2, 28, 2))
sketch3.addConstraint(Sketcher.Constraint("Tangent", 28, 1, 29, 1))
sketch3.addConstraint(Sketcher.Constraint("Coincident", 29, 2, 27, 1))
sketch3.addConstraint(Sketcher.Constraint("Tangent", 30, 2, 31, 2))
sketch3.addConstraint(Sketcher.Constraint("Tangent", 31, 1, 32, 1))
sketch3.addConstraint(Sketcher.Constraint("Coincident", 32, 2, 30, 1))
sketch3.addConstraint(Sketcher.Constraint("Tangent", 33, 2, 34, 2))
sketch3.addConstraint(Sketcher.Constraint("Tangent", 34, 1, 35, 1))
sketch3.addConstraint(Sketcher.Constraint("Coincident", 35, 2, 33, 1))
sketch3.addConstraint(Sketcher.Constraint("Tangent", 36, 2, 37, 2))
sketch3.addConstraint(Sketcher.Constraint("Tangent", 37, 1, 38, 1))
sketch3.addConstraint(Sketcher.Constraint("Coincident", 38, 2, 36, 1))
sketch3.addConstraint(Sketcher.Constraint("Coincident", 39, 2, 40, 1))
sketch3.addConstraint(Sketcher.Constraint("Tangent", 40, 2, 41, 2))
sketch3.addConstraint(Sketcher.Constraint("Tangent", 41, 1, 39, 1))
sketch3.addConstraint(Sketcher.Constraint("Tangent", 42, 2, 43, 2))
sketch3.addConstraint(Sketcher.Constraint("Tangent", 43, 1, 44, 1))
sketch3.addConstraint(Sketcher.Constraint("Coincident", 44, 2, 42, 1))
sketch3.addConstraint(Sketcher.Constraint("Tangent", 45, 2, 46, 2))
sketch3.addConstraint(Sketcher.Constraint("Tangent", 46, 1, 47, 1))
sketch3.addConstraint(Sketcher.Constraint("Coincident", 47, 2, 45, 1))
sketch3.addConstraint(Sketcher.Constraint("Coincident", 48, 1, 49, 2))
sketch3.addConstraint(Sketcher.Constraint("Coincident", 49, 1, 48, 2))
sketch3.addConstraint(Sketcher.Constraint("Coincident", 50, 1, 51, 2))
sketch3.addConstraint(Sketcher.Constraint("Coincident", 51, 1, 50, 2))
sketch3.addConstraint(Sketcher.Constraint("Coincident", 52, 1, 53, 2))
sketch3.addConstraint(Sketcher.Constraint("Coincident", 53, 1, 52, 2))
sketch3.addConstraint(Sketcher.Constraint("Coincident", 54, 1, 55, 2))
sketch3.addConstraint(Sketcher.Constraint("Coincident", 55, 1, 54, 2))
sketch3.addConstraint(Sketcher.Constraint("Coincident", 56, 1, 57, 2))
sketch3.addConstraint(Sketcher.Constraint("Coincident", 57, 1, 56, 2))
sketch3.addConstraint(Sketcher.Constraint("Coincident", 58, 1, 59, 2))
sketch3.addConstraint(Sketcher.Constraint("Coincident", 59, 1, 58, 2))
sketch3.addConstraint(Sketcher.Constraint("Coincident", 60, 1, 61, 2))
sketch3.addConstraint(Sketcher.Constraint("Coincident", 61, 1, 60, 2))
sketch3.addConstraint(Sketcher.Constraint("Coincident", 62, 1, 63, 2))
sketch3.addConstraint(Sketcher.Constraint("Coincident", 63, 1, 62, 2))
sketch3.addConstraint(Sketcher.Constraint("Coincident", 64, 1, 65, 2))
sketch3.addConstraint(Sketcher.Constraint("Coincident", 65, 1, 64, 2))
sketch3.addConstraint(Sketcher.Constraint("Coincident", 66, 1, 67, 2))
sketch3.addConstraint(Sketcher.Constraint("Coincident", 67, 1, 66, 2))
sketch3.addConstraint(Sketcher.Constraint("Coincident", 68, 1, 69, 2))
sketch3.addConstraint(Sketcher.Constraint("Coincident", 69, 1, 68, 2))
sketch3.addConstraint(Sketcher.Constraint("Coincident", 70, 1, 71, 2))
sketch3.addConstraint(Sketcher.Constraint("Coincident", 71, 1, 70, 2))
sketch3.addConstraint(Sketcher.Constraint("Coincident", 72, 1, 73, 2))
sketch3.addConstraint(Sketcher.Constraint("Coincident", 73, 1, 72, 2))
sketch3.addConstraint(Sketcher.Constraint("Coincident", 74, 1, 75, 2))
sketch3.addConstraint(Sketcher.Constraint("Coincident", 75, 1, 74, 2))
sketch3.addConstraint(Sketcher.Constraint("Coincident", 76, 1, 77, 2))
sketch3.addConstraint(Sketcher.Constraint("Coincident", 77, 1, 76, 2))
sketch3.addConstraint(Sketcher.Constraint("Coincident", 78, 1, 79, 2))
sketch3.addConstraint(Sketcher.Constraint("Coincident", 79, 1, 78, 2))
sketch3.addConstraint(Sketcher.Constraint("Vertical", 1))
sketch3.addConstraint(Sketcher.Constraint("Horizontal", 2))
sketch3.addConstraint(Sketcher.Constraint("Horizontal", 4))
sketch3.addConstraint(Sketcher.Constraint("Vertical", 5))
sketch3.addConstraint(Sketcher.Constraint("Vertical", 6))
sketch3.addConstraint(Sketcher.Constraint("Horizontal", 8))
sketch3.addConstraint(Sketcher.Constraint("Horizontal", 9))
sketch3.addConstraint(Sketcher.Constraint("Vertical", 11))
sketch3.addConstraint(Sketcher.Constraint("Vertical", 12))
sketch3.addConstraint(Sketcher.Constraint("Horizontal", 13))
sketch3.addConstraint(Sketcher.Constraint("Vertical", 15))
sketch3.addConstraint(Sketcher.Constraint("Horizontal", 17))
sketch3.addConstraint(Sketcher.Constraint("Vertical", 18))
sketch3.addConstraint(Sketcher.Constraint("Horizontal", 20))
sketch3.addConstraint(Sketcher.Constraint("Horizontal", 21))
sketch3.addConstraint(Sketcher.Constraint("Vertical", 23))
sketch3.addConstraint(Sketcher.Constraint("Horizontal", 24))
sketch3.addConstraint(Sketcher.Constraint("Vertical", 25))
sketch3.addConstraint(Sketcher.Constraint("Horizontal", 27))
sketch3.addConstraint(Sketcher.Constraint("Vertical", 29))
sketch3.addConstraint(Sketcher.Constraint("Horizontal", 30))
sketch3.addConstraint(Sketcher.Constraint("Vertical", 32))
sketch3.addConstraint(Sketcher.Constraint("Vertical", 33))
sketch3.addConstraint(Sketcher.Constraint("Horizontal", 35))
sketch3.addConstraint(Sketcher.Constraint("Vertical", 36))
sketch3.addConstraint(Sketcher.Constraint("Horizontal", 38))
sketch3.addConstraint(Sketcher.Constraint("Vertical", 39))
sketch3.addConstraint(Sketcher.Constraint("Horizontal", 40))
sketch3.addConstraint(Sketcher.Constraint("Horizontal", 42))
sketch3.addConstraint(Sketcher.Constraint("Vertical", 44))
sketch3.addConstraint(Sketcher.Constraint("Vertical", 45))
sketch3.addConstraint(Sketcher.Constraint("Horizontal", 47))
sketch3.addConstraint(Sketcher.Constraint("Vertical", 49))
sketch3.addConstraint(Sketcher.Constraint("Vertical", 51))
sketch3.addConstraint(Sketcher.Constraint("Horizontal", 53))
sketch3.addConstraint(Sketcher.Constraint("Horizontal", 55))
sketch3.addConstraint(Sketcher.Constraint("Horizontal", 56))
sketch3.addConstraint(Sketcher.Constraint("Horizontal", 58))
sketch3.addConstraint(Sketcher.Constraint("Vertical", 60))
sketch3.addConstraint(Sketcher.Constraint("Vertical", 62))
sketch3.addConstraint(Sketcher.Constraint("Vertical", 64))
sketch3.addConstraint(Sketcher.Constraint("Vertical", 66))
sketch3.addConstraint(Sketcher.Constraint("Horizontal", 68))
sketch3.addConstraint(Sketcher.Constraint("Horizontal", 70))
sketch3.addConstraint(Sketcher.Constraint("Vertical", 72))
sketch3.addConstraint(Sketcher.Constraint("Vertical", 74))
sketch3.addConstraint(Sketcher.Constraint("Horizontal", 76))
sketch3.addConstraint(Sketcher.Constraint("Horizontal", 78))
sketch3.addConstraint(Sketcher.Constraint("Coincident", 3, 3, 0, 3))
sketch3.addConstraint(Sketcher.Constraint("Coincident", 10, 3, 7, 3))
sketch3.addConstraint(Sketcher.Constraint("Coincident", 16, 3, 14, 3))
sketch3.addConstraint(Sketcher.Constraint("Coincident", 22, 3, 19, 3))
sketch3.addConstraint(Sketcher.Constraint("Coincident", 28, 3, 26, 3))
sketch3.addConstraint(Sketcher.Constraint("Coincident", 34, 3, 31, 3))
sketch3.addConstraint(Sketcher.Constraint("Coincident", 41, 3, 37, 3))
sketch3.addConstraint(Sketcher.Constraint("Coincident", 46, 3, 43, 3))
sketch3.addConstraint(Sketcher.Constraint("Equal", 0, 3))
sketch3.addConstraint(Sketcher.Constraint("Equal", 3, 7))
sketch3.addConstraint(Sketcher.Constraint("Equal", 7, 10))
sketch3.addConstraint(Sketcher.Constraint("Equal", 10, 14))
sketch3.addConstraint(Sketcher.Constraint("Equal", 14, 16))
sketch3.addConstraint(Sketcher.Constraint("Equal", 16, 19))
sketch3.addConstraint(Sketcher.Constraint("Equal", 19, 22))
sketch3.addConstraint(Sketcher.Constraint("Equal", 22, 26))
sketch3.addConstraint(Sketcher.Constraint("Equal", 26, 28))
sketch3.addConstraint(Sketcher.Constraint("Equal", 28, 31))
sketch3.addConstraint(Sketcher.Constraint("Equal", 31, 34))
sketch3.addConstraint(Sketcher.Constraint("Equal", 34, 37))
sketch3.addConstraint(Sketcher.Constraint("Equal", 37, 41))
sketch3.addConstraint(Sketcher.Constraint("Equal", 41, 43))
sketch3.addConstraint(Sketcher.Constraint("Equal", 43, 46))
sketch3.addConstraint(Sketcher.Constraint("Equal", 48, 50))
sketch3.addConstraint(Sketcher.Constraint("Equal", 50, 52))
sketch3.addConstraint(Sketcher.Constraint("Equal", 52, 54))
sketch3.addConstraint(Sketcher.Constraint("Equal", 54, 57))
sketch3.addConstraint(Sketcher.Constraint("Equal", 57, 59))
sketch3.addConstraint(Sketcher.Constraint("Equal", 59, 61))
sketch3.addConstraint(Sketcher.Constraint("Equal", 61, 63))
sketch3.addConstraint(Sketcher.Constraint("Equal", 63, 65))
sketch3.addConstraint(Sketcher.Constraint("Equal", 65, 67))
sketch3.addConstraint(Sketcher.Constraint("Equal", 67, 69))
sketch3.addConstraint(Sketcher.Constraint("Equal", 69, 71))
sketch3.addConstraint(Sketcher.Constraint("Equal", 71, 73))
sketch3.addConstraint(Sketcher.Constraint("Equal", 73, 75))
sketch3.addConstraint(Sketcher.Constraint("Equal", 75, 77))
sketch3.addConstraint(Sketcher.Constraint("Equal", 77, 79))
sketch3.addConstraint(Sketcher.Constraint("Symmetric", 0, 3, 26, 3, -1, 1))
sketch3.addConstraint(Sketcher.Constraint("Symmetric", 7, 3, 31, 3, -1, 1))
sketch3.addConstraint(Sketcher.Constraint("Symmetric", 14, 3, 37, 3, -1, 1))
sketch3.addConstraint(Sketcher.Constraint("Symmetric", 19, 3, 43, 3, -1, 1))
sketch3.addConstraint(Sketcher.Constraint("Symmetric", 63, 3, 65, 3, -1, 1))
sketch3.addConstraint(Sketcher.Constraint("Symmetric", 61, 3, 67, 3, -1, 1))
sketch3.addConstraint(Sketcher.Constraint("Symmetric", 59, 3, 69, 3, -1, 1))
sketch3.addConstraint(Sketcher.Constraint("Symmetric", 57, 3, 71, 3, -1, 1))
sketch3.addConstraint(Sketcher.Constraint("Symmetric", 50, 3, 73, 3, -1, 1))
sketch3.addConstraint(Sketcher.Constraint("Symmetric", 48, 3, 75, 3, -1, 1))
sketch3.addConstraint(Sketcher.Constraint("Symmetric", 52, 3, 77, 3, -1, 1))
sketch3.addConstraint(Sketcher.Constraint("Symmetric", 54, 3, 79, 3, -1, 1))
sketch3.addConstraint(Sketcher.Constraint("Symmetric", 14, 3, 19, 3, -2))
sketch3.addConstraint(Sketcher.Constraint("Symmetric", 7, 3, 26, 3, -2))
sketch3.addConstraint(Sketcher.Constraint("Symmetric", 54, 3, 57, 3, -2))
sketch3.addConstraint(Sketcher.Constraint("Symmetric", 52, 3, 59, 3, -2))
sketch3.addConstraint(Sketcher.Constraint("Symmetric", 50, 3, 61, 3, -2))
sketch3.addConstraint(Sketcher.Constraint("Symmetric", 48, 3, 63, 3, -2))
sketch3.addConstraint(Sketcher.Constraint("Horizontal", 52, 3, 54, 3))
sketch3.addConstraint(Sketcher.Constraint("Horizontal", 79, 3, 16, 1))
sketch3.addConstraint(Sketcher.Constraint("Horizontal", 44, 2, 52, 1))
sketch3.addConstraint(Sketcher.Constraint("Horizontal", 53, 1, 54, 1))
sketch3.addConstraint(Sketcher.Constraint("Horizontal", 55, 1, 56, 1))
sketch3.addConstraint(Sketcher.Constraint("Horizontal", 57, 1, 58, 1))
sketch3.addConstraint(Sketcher.Constraint("Horizontal", 23, 2, 68, 1))
sketch3.addConstraint(Sketcher.Constraint("Horizontal", 69, 1, 70, 1))
sketch3.addConstraint(Sketcher.Constraint("Horizontal", 71, 1, 76, 1))
sketch3.addConstraint(Sketcher.Constraint("Horizontal", 77, 1, 78, 1))
sketch3.addConstraint(Sketcher.Constraint("Vertical", 48, 3, 50, 3))
sketch3.addConstraint(Sketcher.Constraint("Vertical", 67, 3, 0, 1))
sketch3.addConstraint(Sketcher.Constraint("Vertical", 8, 2, 48, 1))
sketch3.addConstraint(Sketcher.Constraint("Vertical", 49, 1, 50, 1))
sketch3.addConstraint(Sketcher.Constraint("Vertical", 35, 2, 60, 1))
sketch3.addConstraint(Sketcher.Constraint("Vertical", 61, 1, 62, 1))
sketch3.addConstraint(Sketcher.Constraint("Vertical", 51, 1, 64, 1))
sketch3.addConstraint(Sketcher.Constraint("Vertical", 65, 1, 66, 1))
sketch3.addConstraint(Sketcher.Constraint("Vertical", 63, 1, 72, 1))
sketch3.addConstraint(Sketcher.Constraint("Vertical", 73, 1, 74, 1))
sketch3.addConstraint(Sketcher.Constraint("Equal", 47, 53))
sketch3.addConstraint(Sketcher.Constraint("DistanceX", 48, 3, -1, 1, Q("0.5 in")))
sketch3.addConstraint(Sketcher.Constraint("DistanceY", -1, 1, 50, 3, Q("0.4 in")))
sketch3.addConstraint(Sketcher.Constraint("DistanceX", 52, 3, -1, 1, Q("0.4 in")))
sketch3.addConstraint(Sketcher.Constraint("DistanceY", -1, 1, 52, 3, Q("0.5 in")))
sketch3.addConstraint(Sketcher.Constraint("Radius", 0, Q("0.0435 in")))
sketch3.addConstraint(Sketcher.Constraint("DistanceY", -1, 1, 48, 3, Q("0.228 in")))
sketch3.addConstraint(Sketcher.Constraint("DistanceX", 54, 3, -1, 1, Q("0.228 in")))
sketch3.addConstraint(Sketcher.Constraint("DistanceY", -1, 1, 1, 2, Q("0.128 in")))
sketch3.addConstraint(Sketcher.Constraint("DistanceX", 12, 2, -1, 1, Q("0.128 in")))
pocket2 = doc.addObject("PartDesign::Pocket", "Pocket001")
body.addObject(pocket2)
pocket2.Profile = sketch3
pocket2.Type = "ThroughAll"
doc.recompute()

fillet = doc.addObject("PartDesign::Fillet", "Fillet")
body.addObject(fillet)
fillet.Base = (pocket2, edges_at(pocket2, [
    (-2.959, -4.521, 38.4),
    (2.959, -4.521, 38.4),
    (4.521, -2.959, 38.4),
    (4.521, 2.959, 38.4),
    (-4.521, 2.959, 38.4),
    (-4.521, -2.959, 38.4),
    (2.959, 4.521, 38.4),
    (-2.959, 4.521, 38.4),
]))
fillet.Radius = Q("0.1 in")
doc.recompute()

fillet2 = doc.addObject("PartDesign::Fillet", "Fillet001")
body.addObject(fillet2)
fillet2.Base = (fillet, edges_at(fillet, [
    (-12.7, 12.7, 38.4),
    (12.7, 12.7, 38.4),
    (12.7, -12.7, 38.4),
    (-12.7, -12.7, 38.4),
]))
fillet2.Radius = Q("0.07 in")

doc.recompute()
